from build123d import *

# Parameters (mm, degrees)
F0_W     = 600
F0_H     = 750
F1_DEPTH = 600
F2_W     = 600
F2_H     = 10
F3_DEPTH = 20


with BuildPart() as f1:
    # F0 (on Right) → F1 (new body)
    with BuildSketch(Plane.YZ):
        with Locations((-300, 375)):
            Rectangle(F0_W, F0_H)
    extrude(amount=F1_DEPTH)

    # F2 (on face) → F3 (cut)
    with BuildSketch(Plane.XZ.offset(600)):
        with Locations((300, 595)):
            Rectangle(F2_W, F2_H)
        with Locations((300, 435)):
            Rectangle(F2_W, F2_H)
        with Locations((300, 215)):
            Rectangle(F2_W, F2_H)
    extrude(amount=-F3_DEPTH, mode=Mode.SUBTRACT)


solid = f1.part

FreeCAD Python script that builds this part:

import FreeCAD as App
import Part
import Sketcher

V = App.Vector
Q = App.Units.Quantity

doc = App.newDocument("Part")
body = doc.addObject("PartDesign::Body", "Body")

# Sketch on YZ plane
sketch1 = body.newObject("Sketcher::SketchObject", "Sketch")
sketch1.AttachmentSupport = (doc.getObject("YZ_Plane"), [""])
sketch1.MapMode = "FlatFace"
sketch1.addGeometry([
    Part.LineSegment(V(-600, 750, 0), V(-600, 0, 0)),
    Part.LineSegment(V(-600, 0, 0), V(0, 0, 0)),
    Part.LineSegment(V(0, 0, 0), V(0, 750, 0)),
    Part.LineSegment(V(0, 750, 0), V(-600, 750, 0)),
], False)
sketch1.addConstraint([
    Sketcher.Constraint("Coincident", 0, 2, 1, 1),
    Sketcher.Constraint("Coincident", 1, 2, 2, 1),
    Sketcher.Constraint("Coincident", 2, 2, 3, 1),
    Sketcher.Constraint("Coincident", 3, 2, 0, 1),
    Sketcher.Constraint("Vertical", 0),
    Sketcher.Constraint("Horizontal", 1),
    Sketcher.Constraint("Vertical", 2),
    Sketcher.Constraint("Horizontal", 3),
    Sketcher.Constraint("Coincident", 1, 2, -1, 1),
    Sketcher.Constraint("DistanceX", 1, 1, 1, 2, Q("600 mm")),
    Sketcher.Constraint("DistanceY", 0, 2, 0, 1, Q("750 mm")),
])
pad1 = body.newObject("PartDesign::Pad", "Pad")
pad1.Profile = sketch1
pad1.Length = 600

# Sketch on XZ plane
sketch2 = body.newObject("Sketcher::SketchObject", "Sketch001")
sketch2.AttachmentSupport = (doc.getObject("XZ_Plane"), [""])
sketch2.MapMode = "FlatFace"
sketch2.AttachmentOffset = App.Placement(V(0, 0, 600), App.Rotation())
sketch2.addGeometry([
    Part.LineSegment(V(0, 600, 0), V(0, 590, 0)),  # 0
    Part.LineSegment(V(0, 590, 0), V(600, 590, 0)),  # 1
    Part.LineSegment(V(600, 590, 0), V(600, 600, 0)),  # 2
    Part.LineSegment(V(600, 600, 0), V(0, 600, 0)),  # 3
    Part.LineSegment(V(0, 440, 0), V(0, 430, 0)),  # 4
    Part.LineSegment(V(0, 430, 0), V(600, 430, 0)),  # 5
    Part.LineSegment(V(600, 430, 0), V(600, 440, 0)),  # 6
    Part.LineSegment(V(600, 440, 0), V(0, 440, 0)),  # 7
    Part.LineSegment(V(0, 220, 0), V(0, 210, 0)),  # 8
    Part.LineSegment(V(0, 210, 0), V(600, 210, 0)),  # 9
    Part.LineSegment(V(600, 210, 0), V(600, 220, 0)),  # 10
    Part.LineSegment(V(600, 220, 0), V(0, 220, 0)),  # 11
], False)
sketch2.addConstraint([
    Sketcher.Constraint("Coincident", 0, 2, 1, 1),
    Sketcher.Constraint("Coincident", 1, 2, 2, 1),
    Sketcher.Constraint("Coincident", 2, 2, 3, 1),
    Sketcher.Constraint("Coincident", 3, 2, 0, 1),
    Sketcher.Constraint("Coincident", 4, 2, 5, 1),
    Sketcher.Constraint("Coincident", 5, 2, 6, 1),
    Sketcher.Constraint("Coincident", 6, 2, 7, 1),
    Sketcher.Constraint("Coincident", 7, 2, 4, 1),
    Sketcher.Constraint("Coincident", 8, 2, 9, 1),
    Sketcher.Constraint("Coincident", 9, 2, 10, 1),
    Sketcher.Constraint("Coincident", 10, 2, 11, 1),
    Sketcher.Constraint("Coincident", 11, 2, 8, 1),
    Sketcher.Constraint("Vertical", 0),
    Sketcher.Constraint("Horizontal", 1),
    Sketcher.Constraint("Vertical", 2),
    Sketcher.Constraint("Horizontal", 3),
    Sketcher.Constraint("Vertical", 4),
    Sketcher.Constraint("Horizontal", 5),
    Sketcher.Constraint("Vertical", 6),
    Sketcher.Constraint("Horizontal", 7),
    Sketcher.Constraint("Vertical", 8),
    Sketcher.Constraint("Horizontal", 9),
    Sketcher.Constraint("Vertical", 10),
    Sketcher.Constraint("Horizontal", 11),
    Sketcher.Constraint("PointOnObject", 0, 2, -2),
    Sketcher.Constraint("PointOnObject", 4, 2, -2),
    Sketcher.Constraint("PointOnObject", 8, 2, -2),
    Sketcher.Constraint("Vertical", 2, 2, 5, 2),
    Sketcher.Constraint("Vertical", 6, 2, 9, 2),
    Sketcher.Constraint("Equal", 2, 4),
    Sketcher.Constraint("Equal", 6, 8),
    Sketcher.Constraint("DistanceX", 1, 1, 1, 2, Q("600 mm")),
    Sketcher.Constraint("DistanceY", 0, 2, 0, 1, Q("10 mm")),
    Sketcher.Constraint("DistanceY", -1, 1, 0, 2, Q("590 mm")),
    Sketcher.Constraint("DistanceY", -1, 1, 4, 2, Q("430 mm")),
    Sketcher.Constraint("DistanceY", -1, 1, 8, 2, Q("210 mm")),
])
pocket1 = body.newObject("PartDesign::Pocket", "Pocket")
pocket1.Profile = sketch2
pocket1.Length = 20

doc.recompute()
